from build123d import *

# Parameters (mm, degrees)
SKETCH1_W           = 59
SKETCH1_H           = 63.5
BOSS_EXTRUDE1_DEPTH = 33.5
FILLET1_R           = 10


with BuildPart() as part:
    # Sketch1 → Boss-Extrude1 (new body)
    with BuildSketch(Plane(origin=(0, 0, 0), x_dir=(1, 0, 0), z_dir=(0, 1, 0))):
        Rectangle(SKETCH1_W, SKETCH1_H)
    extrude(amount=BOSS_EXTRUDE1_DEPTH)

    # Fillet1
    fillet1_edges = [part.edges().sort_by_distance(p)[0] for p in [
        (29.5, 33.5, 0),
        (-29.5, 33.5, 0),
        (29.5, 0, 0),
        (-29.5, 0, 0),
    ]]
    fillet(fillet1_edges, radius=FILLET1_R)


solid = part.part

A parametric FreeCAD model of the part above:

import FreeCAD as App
import Part
import Sketcher


def edges_at(feature, points):
    """Names of the edges that pass closest to the given points."""
    edges = feature.Shape.Edges
    near = lambda p: min(range(len(edges)), key=lambda i: edges[i].distToShape(Part.Vertex(*p))[0])
    return sorted({f"Edge{near(p) + 1}" for p in points})

doc = App.newDocument("Part")
body = doc.addObject("PartDesign::Body", "Body")

sketch1 = doc.addObject("Sketcher::SketchObject", "Sketch")
body.addObject(sketch1)
sketch1.AttachmentSupport = (doc.XZ_Plane, [""])
sketch1.MapMode = "FlatFace"
sketch1.addGeometry([
    Part.LineSegment(App.Vector(-30, -32, 0), App.Vector(-30, 32, 0)),
    Part.LineSegment(App.Vector(-30, 32, 0), App.Vector(30, 32, 0)),
    Part.LineSegment(App.Vector(30, 32, 0), App.Vector(30, -32, 0)),
    Part.LineSegment(App.Vector(30, -32, 0), App.Vector(-30, -32, 0)),
], False)
sketch1.addConstraint([
    Sketcher.Constraint("Coincident", 0, 2, 1, 1),
    Sketcher.Constraint("Coincident", 1, 2, 2, 1),
    Sketcher.Constraint("Coincident", 2, 2, 3, 1),
    Sketcher.Constraint("Coincident", 3, 2, 0, 1),
    Sketcher.Constraint("Vertical", 0),
    Sketcher.Constraint("Horizontal", 1),
    Sketcher.Constraint("Vertical", 2),
    Sketcher.Constraint("Horizontal", 3),
    Sketcher.Constraint("Symmetric", 0, 2, 2, 2, -1, 1),
    Sketcher.Constraint("DistanceX", 1, 1, 1, 2, 59.0),
    Sketcher.Constraint("DistanceY", 0, 1, 0, 2, 63.5),
])
pad1 = doc.addObject("PartDesign::Pad", "Pad")
body.addObject(pad1)
pad1.Profile = sketch1
pad1.Length = 33.5
pad1.Reversed = True
doc.recompute()

fillet = doc.addObject("PartDesign::Fillet", "Fillet")
body.addObject(fillet)
fillet.Base = (pad1, edges_at(pad1, [
    (29.5, 33.5, 0),
    (-29.5, 33.5, 0),
    (29.5, 0, 0),
    (-29.5, 0, 0),
]))
fillet.Radius = 10

doc.recompute()
